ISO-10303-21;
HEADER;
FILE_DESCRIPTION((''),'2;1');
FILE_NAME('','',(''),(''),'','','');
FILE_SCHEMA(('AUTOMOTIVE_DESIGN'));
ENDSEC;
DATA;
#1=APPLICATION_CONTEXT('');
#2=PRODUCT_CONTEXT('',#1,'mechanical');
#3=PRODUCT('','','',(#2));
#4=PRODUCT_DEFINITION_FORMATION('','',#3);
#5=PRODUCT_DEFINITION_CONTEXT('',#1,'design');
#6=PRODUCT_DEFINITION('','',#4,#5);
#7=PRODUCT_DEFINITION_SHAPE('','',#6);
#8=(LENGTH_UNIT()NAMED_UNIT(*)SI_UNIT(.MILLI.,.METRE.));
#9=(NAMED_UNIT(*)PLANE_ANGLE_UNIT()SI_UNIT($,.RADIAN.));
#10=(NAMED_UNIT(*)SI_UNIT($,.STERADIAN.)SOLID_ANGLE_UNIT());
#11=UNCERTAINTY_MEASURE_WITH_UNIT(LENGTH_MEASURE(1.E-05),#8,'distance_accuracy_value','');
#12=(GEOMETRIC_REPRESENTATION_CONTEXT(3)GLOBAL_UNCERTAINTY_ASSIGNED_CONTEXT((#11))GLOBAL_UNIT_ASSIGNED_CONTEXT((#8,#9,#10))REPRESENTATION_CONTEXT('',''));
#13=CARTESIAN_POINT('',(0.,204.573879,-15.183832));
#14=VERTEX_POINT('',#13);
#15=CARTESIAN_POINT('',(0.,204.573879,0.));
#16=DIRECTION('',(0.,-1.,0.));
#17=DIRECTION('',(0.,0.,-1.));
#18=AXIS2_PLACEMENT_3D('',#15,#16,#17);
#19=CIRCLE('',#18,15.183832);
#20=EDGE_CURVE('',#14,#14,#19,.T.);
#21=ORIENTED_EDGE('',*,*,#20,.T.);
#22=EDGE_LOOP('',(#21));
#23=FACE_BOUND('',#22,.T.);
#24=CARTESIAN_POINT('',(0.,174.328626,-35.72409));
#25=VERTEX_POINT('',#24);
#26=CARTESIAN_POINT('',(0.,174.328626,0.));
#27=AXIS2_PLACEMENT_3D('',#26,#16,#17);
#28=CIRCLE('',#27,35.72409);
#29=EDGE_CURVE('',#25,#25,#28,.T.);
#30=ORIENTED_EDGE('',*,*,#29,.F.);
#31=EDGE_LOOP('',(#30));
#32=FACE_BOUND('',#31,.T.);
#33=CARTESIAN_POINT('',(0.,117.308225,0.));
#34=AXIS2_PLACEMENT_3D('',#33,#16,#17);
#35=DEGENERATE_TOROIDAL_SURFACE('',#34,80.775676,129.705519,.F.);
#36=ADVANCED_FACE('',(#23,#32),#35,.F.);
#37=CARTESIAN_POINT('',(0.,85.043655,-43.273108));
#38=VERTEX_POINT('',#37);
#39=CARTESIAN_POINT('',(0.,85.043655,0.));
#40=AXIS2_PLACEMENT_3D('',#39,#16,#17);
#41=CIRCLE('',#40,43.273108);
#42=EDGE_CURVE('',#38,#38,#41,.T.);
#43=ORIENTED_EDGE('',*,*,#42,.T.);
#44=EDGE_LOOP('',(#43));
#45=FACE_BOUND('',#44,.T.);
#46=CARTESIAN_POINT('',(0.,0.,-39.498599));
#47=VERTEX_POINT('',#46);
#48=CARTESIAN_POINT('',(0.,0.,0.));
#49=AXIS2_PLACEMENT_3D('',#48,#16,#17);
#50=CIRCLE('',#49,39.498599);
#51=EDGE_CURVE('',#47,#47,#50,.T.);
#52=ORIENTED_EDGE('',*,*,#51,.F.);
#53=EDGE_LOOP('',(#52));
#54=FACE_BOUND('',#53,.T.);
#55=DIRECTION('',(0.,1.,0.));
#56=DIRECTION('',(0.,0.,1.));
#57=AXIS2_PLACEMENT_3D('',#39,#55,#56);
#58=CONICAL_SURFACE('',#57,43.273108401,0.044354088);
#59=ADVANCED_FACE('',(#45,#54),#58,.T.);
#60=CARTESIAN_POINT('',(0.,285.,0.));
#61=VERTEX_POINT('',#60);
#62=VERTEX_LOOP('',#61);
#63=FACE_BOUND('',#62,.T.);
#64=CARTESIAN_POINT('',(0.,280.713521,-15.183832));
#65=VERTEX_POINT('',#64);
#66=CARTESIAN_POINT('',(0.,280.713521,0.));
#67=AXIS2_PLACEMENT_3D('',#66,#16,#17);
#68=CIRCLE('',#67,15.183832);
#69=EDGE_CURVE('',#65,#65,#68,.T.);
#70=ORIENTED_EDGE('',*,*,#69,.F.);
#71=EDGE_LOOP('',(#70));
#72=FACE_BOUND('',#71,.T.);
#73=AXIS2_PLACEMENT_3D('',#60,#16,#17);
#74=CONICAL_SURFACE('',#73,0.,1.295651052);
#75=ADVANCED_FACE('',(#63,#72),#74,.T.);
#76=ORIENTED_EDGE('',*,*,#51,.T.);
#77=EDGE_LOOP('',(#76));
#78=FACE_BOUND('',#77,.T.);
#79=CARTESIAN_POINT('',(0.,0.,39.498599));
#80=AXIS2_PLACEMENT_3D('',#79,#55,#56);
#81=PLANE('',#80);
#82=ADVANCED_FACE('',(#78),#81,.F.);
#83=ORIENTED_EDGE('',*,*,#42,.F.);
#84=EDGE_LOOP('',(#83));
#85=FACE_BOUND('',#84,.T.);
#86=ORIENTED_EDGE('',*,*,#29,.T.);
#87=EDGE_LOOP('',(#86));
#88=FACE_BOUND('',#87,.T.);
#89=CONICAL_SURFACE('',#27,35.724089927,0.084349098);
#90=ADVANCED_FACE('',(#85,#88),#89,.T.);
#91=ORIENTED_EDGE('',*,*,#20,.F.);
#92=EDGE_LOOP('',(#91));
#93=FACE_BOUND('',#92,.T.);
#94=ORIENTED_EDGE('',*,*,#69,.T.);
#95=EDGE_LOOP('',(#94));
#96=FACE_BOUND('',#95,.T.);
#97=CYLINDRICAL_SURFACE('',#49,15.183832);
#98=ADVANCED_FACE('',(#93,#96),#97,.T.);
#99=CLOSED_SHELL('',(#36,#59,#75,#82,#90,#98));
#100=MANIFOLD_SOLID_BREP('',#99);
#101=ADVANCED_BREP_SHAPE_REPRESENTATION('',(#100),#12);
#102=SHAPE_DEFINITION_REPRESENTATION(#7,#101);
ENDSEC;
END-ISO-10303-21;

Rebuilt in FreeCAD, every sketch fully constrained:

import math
import FreeCAD as App
import Part
import Sketcher
from FreeCAD import Vector

doc = App.newDocument("Part")
body = doc.addObject("PartDesign::Body", "Body")

# Sketch on YZ plane
sketch1 = body.newObject("Sketcher::SketchObject", "Sketch")
sketch1.AttachmentSupport = (doc.getObject("YZ_Plane"), [""])
sketch1.MapMode = "FlatFace"
sketch1.addGeometry(Part.LineSegment(Vector(285, 0, 0), Vector(281, 15, 0)), False)
sketch1.addGeometry(Part.LineSegment(Vector(281, 15, 0), Vector(205, 15, 0)), False)
sketch1.addGeometry(Part.ArcOfCircle(Part.Circle(Vector(117, -81, 0), Vector(0, 0, 1), 130), math.radians(47.72), math.radians(63.92)), False)
sketch1.addGeometry(Part.LineSegment(Vector(174, 36, 0), Vector(85, 43, 0)), False)
sketch1.addGeometry(Part.LineSegment(Vector(85, 43, 0), Vector(0, 39, 0)), False)
sketch1.addGeometry(Part.LineSegment(Vector(0, 39, 0), Vector(0, 0, 0)), False)
sketch1.addGeometry(Part.LineSegment(Vector(0, 0, 0), Vector(285, 0, 0)), False)
sketch1.addConstraint(Sketcher.Constraint("Coincident", 0, 2, 1, 1))
sketch1.addConstraint(Sketcher.Constraint("Coincident", 1, 2, 2, 1))
sketch1.addConstraint(Sketcher.Constraint("Coincident", 2, 2, 3, 1))
sketch1.addConstraint(Sketcher.Constraint("Coincident", 3, 2, 4, 1))
sketch1.addConstraint(Sketcher.Constraint("Coincident", 4, 2, 5, 1))
sketch1.addConstraint(Sketcher.Constraint("Coincident", 5, 2, 6, 1))
sketch1.addConstraint(Sketcher.Constraint("Coincident", 6, 2, 0, 1))
sketch1.addConstraint(Sketcher.Constraint("Horizontal", 1))
sketch1.addConstraint(Sketcher.Constraint("Vertical", 5))
sketch1.addConstraint(Sketcher.Constraint("Horizontal", 6))
sketch1.addConstraint(Sketcher.Constraint("Coincident", 5, 2, -1, 1))
sketch1.addConstraint(Sketcher.Constraint("DistanceX", 6, 1, 6, 2, 285.0))
sketch1.addConstraint(Sketcher.Constraint("Radius", 2, 129.705519))
sketch1.addConstraint(Sketcher.Constraint("DistanceY", 5, 2, 5, 1, 39.498599))
sketch1.addConstraint(Sketcher.Constraint("DistanceX", 2, 3, 2, 2, 57.020401))
sketch1.addConstraint(Sketcher.Constraint("DistanceX", 1, 2, 1, 1, 76.139642))
sketch1.addConstraint(Sketcher.Constraint("DistanceX", -1, 1, 0, 2, 280.713521))
sketch1.addConstraint(Sketcher.Constraint("DistanceY", -1, 1, 2, 2, 35.72409))
sketch1.addConstraint(Sketcher.Constraint("DistanceY", -1, 1, 3, 2, 43.273108))
sketch1.addConstraint(Sketcher.Constraint("DistanceY", 2, 3, 0, 2, 95.959508))
sketch1.addConstraint(Sketcher.Constraint("DistanceX", 3, 2, 2, 2, 89.284971))
revolution = body.newObject("PartDesign::Revolution", "Revolution")
revolution.Profile = sketch1
revolution.ReferenceAxis = (sketch1, ["H_Axis"])
revolution.Angle = 360

doc.recompute()
